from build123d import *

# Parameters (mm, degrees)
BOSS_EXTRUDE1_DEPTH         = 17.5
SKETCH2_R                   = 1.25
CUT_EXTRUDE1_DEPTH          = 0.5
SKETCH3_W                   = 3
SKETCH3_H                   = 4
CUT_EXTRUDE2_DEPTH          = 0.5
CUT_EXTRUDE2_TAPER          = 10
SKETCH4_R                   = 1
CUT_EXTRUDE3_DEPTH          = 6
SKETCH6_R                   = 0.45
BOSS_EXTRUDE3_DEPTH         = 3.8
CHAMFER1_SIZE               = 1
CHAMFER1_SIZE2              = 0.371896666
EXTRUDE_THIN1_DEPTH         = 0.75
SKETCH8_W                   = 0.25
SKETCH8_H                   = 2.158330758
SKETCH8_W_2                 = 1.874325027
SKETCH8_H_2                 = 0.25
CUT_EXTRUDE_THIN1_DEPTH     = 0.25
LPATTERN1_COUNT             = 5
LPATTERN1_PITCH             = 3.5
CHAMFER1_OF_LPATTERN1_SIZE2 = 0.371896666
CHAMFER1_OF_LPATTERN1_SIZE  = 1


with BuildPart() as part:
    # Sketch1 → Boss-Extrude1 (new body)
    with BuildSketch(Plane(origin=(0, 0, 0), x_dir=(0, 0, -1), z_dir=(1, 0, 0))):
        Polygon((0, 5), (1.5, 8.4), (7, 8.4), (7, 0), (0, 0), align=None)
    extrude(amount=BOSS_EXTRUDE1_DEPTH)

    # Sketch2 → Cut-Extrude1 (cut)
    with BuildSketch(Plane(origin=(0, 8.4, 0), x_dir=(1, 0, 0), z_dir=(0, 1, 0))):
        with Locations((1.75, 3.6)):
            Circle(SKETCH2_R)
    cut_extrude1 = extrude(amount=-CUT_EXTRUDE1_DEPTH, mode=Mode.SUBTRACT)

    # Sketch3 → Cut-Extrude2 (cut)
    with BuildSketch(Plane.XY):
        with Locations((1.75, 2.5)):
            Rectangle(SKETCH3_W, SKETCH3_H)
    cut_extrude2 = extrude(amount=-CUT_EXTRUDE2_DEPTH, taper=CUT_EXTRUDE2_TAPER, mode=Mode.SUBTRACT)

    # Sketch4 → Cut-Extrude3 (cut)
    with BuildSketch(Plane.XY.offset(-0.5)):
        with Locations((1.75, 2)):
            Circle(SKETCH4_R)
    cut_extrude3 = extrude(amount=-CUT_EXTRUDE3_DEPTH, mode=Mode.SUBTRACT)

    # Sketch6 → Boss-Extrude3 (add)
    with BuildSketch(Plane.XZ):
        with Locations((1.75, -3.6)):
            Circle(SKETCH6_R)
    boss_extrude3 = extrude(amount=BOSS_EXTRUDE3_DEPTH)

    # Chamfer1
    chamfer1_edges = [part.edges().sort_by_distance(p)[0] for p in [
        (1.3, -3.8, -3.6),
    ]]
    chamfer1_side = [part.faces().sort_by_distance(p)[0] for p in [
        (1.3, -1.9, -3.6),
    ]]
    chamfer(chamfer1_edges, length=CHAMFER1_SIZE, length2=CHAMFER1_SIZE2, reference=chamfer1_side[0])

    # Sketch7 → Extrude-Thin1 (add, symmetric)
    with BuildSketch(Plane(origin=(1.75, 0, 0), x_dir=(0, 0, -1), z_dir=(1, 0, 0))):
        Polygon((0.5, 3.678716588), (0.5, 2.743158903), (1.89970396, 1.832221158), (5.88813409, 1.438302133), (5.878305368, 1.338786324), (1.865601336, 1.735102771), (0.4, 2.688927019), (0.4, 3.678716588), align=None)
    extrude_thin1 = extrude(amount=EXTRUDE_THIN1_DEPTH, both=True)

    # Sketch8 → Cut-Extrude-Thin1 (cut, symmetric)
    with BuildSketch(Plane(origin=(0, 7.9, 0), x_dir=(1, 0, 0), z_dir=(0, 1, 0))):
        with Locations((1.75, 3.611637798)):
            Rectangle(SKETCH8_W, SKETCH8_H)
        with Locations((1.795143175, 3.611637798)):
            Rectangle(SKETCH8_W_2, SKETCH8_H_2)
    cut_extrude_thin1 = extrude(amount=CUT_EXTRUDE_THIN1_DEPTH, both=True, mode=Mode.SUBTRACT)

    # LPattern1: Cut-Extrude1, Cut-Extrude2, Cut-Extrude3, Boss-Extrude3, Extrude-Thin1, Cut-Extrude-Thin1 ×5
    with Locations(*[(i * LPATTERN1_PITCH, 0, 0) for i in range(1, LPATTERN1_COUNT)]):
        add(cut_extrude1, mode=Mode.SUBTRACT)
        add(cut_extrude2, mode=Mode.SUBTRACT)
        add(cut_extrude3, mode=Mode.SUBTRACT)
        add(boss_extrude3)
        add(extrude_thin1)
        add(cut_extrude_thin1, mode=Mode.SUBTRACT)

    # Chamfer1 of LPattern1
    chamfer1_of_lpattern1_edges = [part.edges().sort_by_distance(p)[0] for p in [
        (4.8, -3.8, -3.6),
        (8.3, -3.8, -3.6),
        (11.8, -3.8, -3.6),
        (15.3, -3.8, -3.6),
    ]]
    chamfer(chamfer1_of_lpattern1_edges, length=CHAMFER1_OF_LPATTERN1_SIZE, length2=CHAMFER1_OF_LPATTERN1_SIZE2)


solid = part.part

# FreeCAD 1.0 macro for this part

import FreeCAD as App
import Part
import Sketcher

V = App.Vector


def edges_at(feature, points):
    """Names of the edges that pass closest to the given points."""
    edges = feature.Shape.Edges
    near = lambda p: min(range(len(edges)), key=lambda i: edges[i].distToShape(Part.Vertex(*p))[0])
    return sorted({f"Edge{near(p) + 1}" for p in points})

doc = App.newDocument("Part")
params = doc.addObject("Spreadsheet::Sheet", "Params")
for row, (alias, value) in enumerate([
    ("sketch1_width", "5 mm"),
    ("sketch1_height", "7 mm"),
    ("sketch1_width2", "8.4 mm"),
    ("sketch1_height2", "5.5 mm"),
    ("pad1_length", "17.5 mm"),
    ("sketch2_diameter", "2.5 mm"),
    ("pocket1_length", "0.5 mm"),
    ("sketch3_width", "3 mm"),
    ("sketch3_height", "4 mm"),
    ("pocket2_length", "0.5 mm"),
    ("pocket2_taper", "-10 deg"),
    ("sketch4_diameter", "2 mm"),
    ("pocket3_length", "6 mm"),
    ("sketch5_diameter", "0.9 mm"),
    ("pad2_length", "3.8 mm"),
    ("chamfer_size", "1 mm"),
    ("chamfer_size2", "0.371897 mm"),
    ("sketch6_height", "0.1 mm"),
    ("sketch6_length", "0.1 mm"),
    ("pad3_length", "1.5 mm"),
    ("sketch7_width", "0.25 mm"),
    ("pocket4_length", "0.5 mm"),
    ("linearpattern_pitch", "3.5 mm"),
    ("chamfer2_size", "1 mm"),
    ("chamfer2_size2", "0.371897 mm"),
], start=1):
    params.set(f"A{row}", alias)
    params.set(f"B{row}", "=" + value)
    params.setAlias(f"B{row}", alias)

body = doc.addObject("PartDesign::Body", "Body")

sketch1 = body.newObject("Sketcher::SketchObject", "Sketch")
sketch1.AttachmentSupport = (doc.getObject("YZ_Plane"), [""])
sketch1.MapMode = "FlatFace"
sketch1.addGeometry(Part.LineSegment(V(8.4, -1.5, 0), V(5, 0, 0)), False)
sketch1.addGeometry(Part.LineSegment(V(5, 0, 0), V(0, 0, 0)), False)
sketch1.addGeometry(Part.LineSegment(V(0, 0, 0), V(0, -7, 0)), False)
sketch1.addGeometry(Part.LineSegment(V(0, -7, 0), V(8.4, -7, 0)), False)
sketch1.addGeometry(Part.LineSegment(V(8.4, -7, 0), V(8.4, -1.5, 0)), False)
sketch1.addConstraint(Sketcher.Constraint("Coincident", 0, 2, 1, 1))
sketch1.addConstraint(Sketcher.Constraint("Coincident", 1, 2, 2, 1))
sketch1.addConstraint(Sketcher.Constraint("Coincident", 2, 2, 3, 1))
sketch1.addConstraint(Sketcher.Constraint("Coincident", 3, 2, 4, 1))
sketch1.addConstraint(Sketcher.Constraint("Coincident", 4, 2, 0, 1))
sketch1.addConstraint(Sketcher.Constraint("Horizontal", 1))
sketch1.addConstraint(Sketcher.Constraint("Vertical", 2))
sketch1.addConstraint(Sketcher.Constraint("Horizontal", 3))
sketch1.addConstraint(Sketcher.Constraint("Vertical", 4))
sketch1.addConstraint(Sketcher.Constraint("Coincident", 1, 2, -1, 1))
sketch1.addConstraint(Sketcher.Constraint("DistanceX", 1, 2, 1, 1, 5.0))
sketch1.addConstraint(Sketcher.Constraint("DistanceY", 2, 2, 2, 1, 7.0))
sketch1.addConstraint(Sketcher.Constraint("DistanceX", 3, 1, 3, 2, 8.4))
sketch1.addConstraint(Sketcher.Constraint("DistanceY", 4, 1, 4, 2, 5.5))
sketch1.setExpression("Constraints[10]", "Params.sketch1_width")
sketch1.setExpression("Constraints[11]", "Params.sketch1_height")
sketch1.setExpression("Constraints[12]", "Params.sketch1_width2")
sketch1.setExpression("Constraints[13]", "Params.sketch1_height2")
pad1 = body.newObject("PartDesign::Pad", "Pad")
pad1.Profile = sketch1
pad1.setExpression("Length", "Params.pad1_length")

sketch2 = body.newObject("Sketcher::SketchObject", "Sketch001")
sketch2.AttachmentSupport = (doc.getObject("XZ_Plane"), [""])
sketch2.MapMode = "FlatFace"
sketch2.AttachmentOffset = App.Placement(V(0, 0, -8.4), App.Rotation())
sketch2.addGeometry(Part.Circle(V(1.75, -3.6, 0), V(0, 0, 1), 1.25), False)
sketch2.addConstraint(Sketcher.Constraint("Diameter", 0, 2.5))
sketch2.addConstraint(Sketcher.Constraint("DistanceY", 0, 3, -1, 1, 3.6))
sketch2.addConstraint(Sketcher.Constraint("DistanceX", -1, 1, 0, 3, 1.75))
sketch2.setExpression("Constraints[0]", "Params.sketch2_diameter")
pocket1 = body.newObject("PartDesign::Pocket", "Pocket")
pocket1.Profile = sketch2
pocket1.setExpression("Length", "Params.pocket1_length")
pocket1.Reversed = True

sketch3 = body.newObject("Sketcher::SketchObject", "Sketch002")
sketch3.AttachmentSupport = (doc.getObject("XY_Plane"), [""])
sketch3.MapMode = "FlatFace"
sketch3.addGeometry(Part.LineSegment(V(0.25, 4.5, 0), V(0.25, 0.5, 0)), False)
sketch3.addGeometry(Part.LineSegment(V(0.25, 0.5, 0), V(3.25, 0.5, 0)), False)
sketch3.addGeometry(Part.LineSegment(V(3.25, 0.5, 0), V(3.25, 4.5, 0)), False)
sketch3.addGeometry(Part.LineSegment(V(3.25, 4.5, 0), V(0.25, 4.5, 0)), False)
sketch3.addConstraint(Sketcher.Constraint("Coincident", 0, 2, 1, 1))
sketch3.addConstraint(Sketcher.Constraint("Coincident", 1, 2, 2, 1))
sketch3.addConstraint(Sketcher.Constraint("Coincident", 2, 2, 3, 1))
sketch3.addConstraint(Sketcher.Constraint("Coincident", 3, 2, 0, 1))
sketch3.addConstraint(Sketcher.Constraint("Vertical", 0))
sketch3.addConstraint(Sketcher.Constraint("Horizontal", 1))
sketch3.addConstraint(Sketcher.Constraint("Vertical", 2))
sketch3.addConstraint(Sketcher.Constraint("Horizontal", 3))
sketch3.addConstraint(Sketcher.Constraint("DistanceX", 1, 1, 1, 2, 3.0))
sketch3.addConstraint(Sketcher.Constraint("DistanceY", 0, 2, 0, 1, 4.0))
sketch3.addConstraint(Sketcher.Constraint("DistanceY", -1, 1, 0, 2, 0.5))
sketch3.addConstraint(Sketcher.Constraint("DistanceX", -1, 1, 0, 2, 0.25))
sketch3.setExpression("Constraints[8]", "Params.sketch3_width")
sketch3.setExpression("Constraints[9]", "Params.sketch3_height")
pocket2 = body.newObject("PartDesign::Pocket", "Pocket001")
pocket2.Profile = sketch3
pocket2.setExpression("Length", "Params.pocket2_length")
pocket2.setExpression("TaperAngle", "Params.pocket2_taper")

sketch4 = body.newObject("Sketcher::SketchObject", "Sketch003")
sketch4.AttachmentSupport = (doc.getObject("XY_Plane"), [""])
sketch4.MapMode = "FlatFace"
sketch4.AttachmentOffset = App.Placement(V(0, 0, -0.5), App.Rotation())
sketch4.addGeometry(Part.Circle(V(1.75, 2, 0), V(0, 0, 1), 1), False)
sketch4.addConstraint(Sketcher.Constraint("Diameter", 0, 2.0))
sketch4.addConstraint(Sketcher.Constraint("DistanceY", -1, 1, 0, 3, 2.0))
sketch4.addConstraint(Sketcher.Constraint("DistanceX", -1, 1, 0, 3, 1.75))
sketch4.setExpression("Constraints[0]", "Params.sketch4_diameter")
pocket3 = body.newObject("PartDesign::Pocket", "Pocket002")
pocket3.Profile = sketch4
pocket3.setExpression("Length", "Params.pocket3_length")

sketch5 = body.newObject("Sketcher::SketchObject", "Sketch004")
sketch5.AttachmentSupport = (doc.getObject("XZ_Plane"), [""])
sketch5.MapMode = "FlatFace"
sketch5.addGeometry(Part.Circle(V(1.75, -3.6, 0), V(0, 0, 1), 0.45), False)
sketch5.addConstraint(Sketcher.Constraint("Diameter", 0, 0.9))
sketch5.addConstraint(Sketcher.Constraint("DistanceY", 0, 3, -1, 1, 3.6))
sketch5.addConstraint(Sketcher.Constraint("DistanceX", -1, 1, 0, 3, 1.75))
sketch5.setExpression("Constraints[0]", "Params.sketch5_diameter")
pad2 = body.newObject("PartDesign::Pad", "Pad001")
pad2.Profile = sketch5
pad2.setExpression("Length", "Params.pad2_length")
doc.recompute()

chamfer = body.newObject("PartDesign::Chamfer", "Chamfer")
chamfer.Base = (pad2, edges_at(pad2, [(1.3, -3.8, -3.6)]))
chamfer.ChamferType = "Two distances"
chamfer.setExpression("Size", "Params.chamfer_size")
chamfer.setExpression("Size2", "Params.chamfer_size2")

sketch6 = body.newObject("Sketcher::SketchObject", "Sketch005")
sketch6.AttachmentSupport = (doc.getObject("YZ_Plane"), [""])
sketch6.MapMode = "FlatFace"
sketch6.AttachmentOffset = App.Placement(V(0, 0, 1.75), App.Rotation())
sketch6.addGeometry(Part.LineSegment(V(2.743159, -0.5, 0), V(3.678717, -0.5, 0)), False)
sketch6.addGeometry(Part.LineSegment(V(3.678717, -0.5, 0), V(3.678717, -0.4, 0)), False)
sketch6.addGeometry(Part.LineSegment(V(3.678717, -0.4, 0), V(2.688927, -0.4, 0)), False)
sketch6.addGeometry(Part.LineSegment(V(2.688927, -0.4, 0), V(1.735103, -1.865601, 0)), False)
sketch6.addGeometry(Part.LineSegment(V(1.735103, -1.865601, 0), V(1.338786, -5.878305, 0)), False)
sketch6.addGeometry(Part.LineSegment(V(1.338786, -5.878305, 0), V(1.438302, -5.888134, 0)), False)
sketch6.addGeometry(Part.LineSegment(V(1.438302, -5.888134, 0), V(1.832221, -1.899704, 0)), False)
sketch6.addGeometry(Part.LineSegment(V(1.832221, -1.899704, 0), V(2.743159, -0.5, 0)), False)
sketch6.addConstraint(Sketcher.Constraint("Coincident", 0, 2, 1, 1))
sketch6.addConstraint(Sketcher.Constraint("Coincident", 1, 2, 2, 1))
sketch6.addConstraint(Sketcher.Constraint("Coincident", 2, 2, 3, 1))
sketch6.addConstraint(Sketcher.Constraint("Coincident", 3, 2, 4, 1))
sketch6.addConstraint(Sketcher.Constraint("Coincident", 4, 2, 5, 1))
sketch6.addConstraint(Sketcher.Constraint("Coincident", 5, 2, 6, 1))
sketch6.addConstraint(Sketcher.Constraint("Coincident", 6, 2, 7, 1))
sketch6.addConstraint(Sketcher.Constraint("Coincident", 7, 2, 0, 1))
sketch6.addConstraint(Sketcher.Constraint("Horizontal", 0))
sketch6.addConstraint(Sketcher.Constraint("Vertical", 1))
sketch6.addConstraint(Sketcher.Constraint("Horizontal", 2))
sketch6.addConstraint(Sketcher.Constraint("Perpendicular", 4, 5))
sketch6.addConstraint(Sketcher.Constraint("Perpendicular", 5, 6))
sketch6.addConstraint(Sketcher.Constraint("Parallel", 3, 7))
sketch6.addConstraint(Sketcher.Constraint("DistanceY", 1, 1, 1, 2, 0.1))
sketch6.addConstraint(Sketcher.Constraint("Distance", 5, 0.1))
sketch6.addConstraint(Sketcher.Constraint("DistanceY", 0, 2, -1, 1, 0.5))
sketch6.addConstraint(Sketcher.Constraint("DistanceX", 2, 2, 2, 1, 0.98979))
sketch6.addConstraint(Sketcher.Constraint("DistanceY", 3, 2, -1, 1, 1.865601))
sketch6.addConstraint(Sketcher.Constraint("DistanceX", 5, 2, 3, 2, 0.296801))
sketch6.addConstraint(Sketcher.Constraint("DistanceX", 0, 1, 0, 2, 0.935558))
sketch6.addConstraint(Sketcher.Constraint("DistanceX", -1, 1, 6, 2, 1.832221))
sketch6.addConstraint(Sketcher.Constraint("DistanceX", -1, 1, 7, 2, 2.743159))
sketch6.addConstraint(Sketcher.Constraint("DistanceY", 5, 2, 6, 2, 3.98843))
sketch6.setExpression("Constraints[14]", "Params.sketch6_height")
sketch6.setExpression("Constraints[15]", "Params.sketch6_length")
pad3 = body.newObject("PartDesign::Pad", "Pad002")
pad3.Profile = sketch6
pad3.setExpression("Length", "Params.pad3_length")
pad3.Midplane = True

sketch7 = body.newObject("Sketcher::SketchObject", "Sketch006")
sketch7.AttachmentSupport = (doc.getObject("XZ_Plane"), [""])
sketch7.MapMode = "FlatFace"
sketch7.AttachmentOffset = App.Placement(V(0, 0, -7.9), App.Rotation())
sketch7.addGeometry(Part.LineSegment(V(1.625, -3.486638, 0), V(1.625, -2.532472, 0)), False)
sketch7.addGeometry(Part.LineSegment(V(1.625, -2.532472, 0), V(1.875, -2.532472, 0)), False)
sketch7.addGeometry(Part.LineSegment(V(1.875, -2.532472, 0), V(1.875, -3.486638, 0)), False)
sketch7.addGeometry(Part.LineSegment(V(1.875, -3.486638, 0), V(2.732306, -3.486638, 0)), False)
sketch7.addGeometry(Part.LineSegment(V(2.732306, -3.486638, 0), V(2.732306, -3.736638, 0)), False)
sketch7.addGeometry(Part.LineSegment(V(2.732306, -3.736638, 0), V(1.875, -3.736638, 0)), False)
sketch7.addGeometry(Part.LineSegment(V(1.875, -3.736638, 0), V(1.875, -4.690803, 0)), False)
sketch7.addGeometry(Part.LineSegment(V(1.875, -4.690803, 0), V(1.625, -4.690803, 0)), False)
sketch7.addGeometry(Part.LineSegment(V(1.625, -4.690803, 0), V(1.625, -3.736638, 0)), False)
sketch7.addGeometry(Part.LineSegment(V(1.625, -3.736638, 0), V(0.857981, -3.736638, 0)), False)
sketch7.addGeometry(Part.LineSegment(V(0.857981, -3.736638, 0), V(0.857981, -3.486638, 0)), False)
sketch7.addGeometry(Part.LineSegment(V(0.857981, -3.486638, 0), V(1.625, -3.486638, 0)), False)
sketch7.addConstraint(Sketcher.Constraint("Coincident", 0, 2, 1, 1))
sketch7.addConstraint(Sketcher.Constraint("Coincident", 1, 2, 2, 1))
sketch7.addConstraint(Sketcher.Constraint("Coincident", 2, 2, 3, 1))
sketch7.addConstraint(Sketcher.Constraint("Coincident", 3, 2, 4, 1))
sketch7.addConstraint(Sketcher.Constraint("Coincident", 4, 2, 5, 1))
sketch7.addConstraint(Sketcher.Constraint("Coincident", 5, 2, 6, 1))
sketch7.addConstraint(Sketcher.Constraint("Coincident", 6, 2, 7, 1))
sketch7.addConstraint(Sketcher.Constraint("Coincident", 7, 2, 8, 1))
sketch7.addConstraint(Sketcher.Constraint("Coincident", 8, 2, 9, 1))
sketch7.addConstraint(Sketcher.Constraint("Coincident", 9, 2, 10, 1))
sketch7.addConstraint(Sketcher.Constraint("Coincident", 10, 2, 11, 1))
sketch7.addConstraint(Sketcher.Constraint("Coincident", 11, 2, 0, 1))
sketch7.addConstraint(Sketcher.Constraint("Vertical", 0))
sketch7.addConstraint(Sketcher.Constraint("Horizontal", 1))
sketch7.addConstraint(Sketcher.Constraint("Vertical", 2))
sketch7.addConstraint(Sketcher.Constraint("Horizontal", 3))
sketch7.addConstraint(Sketcher.Constraint("Vertical", 4))
sketch7.addConstraint(Sketcher.Constraint("Horizontal", 5))
sketch7.addConstraint(Sketcher.Constraint("Vertical", 6))
sketch7.addConstraint(Sketcher.Constraint("Horizontal", 7))
sketch7.addConstraint(Sketcher.Constraint("Vertical", 8))
sketch7.addConstraint(Sketcher.Constraint("Horizontal", 9))
sketch7.addConstraint(Sketcher.Constraint("Vertical", 10))
sketch7.addConstraint(Sketcher.Constraint("Horizontal", 11))
sketch7.addConstraint(Sketcher.Constraint("Horizontal", 5, 2, 8, 2))
sketch7.addConstraint(Sketcher.Constraint("Horizontal", 3, 2, 10, 2))
sketch7.addConstraint(Sketcher.Constraint("Vertical", 2, 2, 5, 2))
sketch7.addConstraint(Sketcher.Constraint("Vertical", 0, 2, 7, 2))
sketch7.addConstraint(Sketcher.Constraint("Equal", 7, 4))
sketch7.addConstraint(Sketcher.Constraint("Equal", 2, 6))
sketch7.addConstraint(Sketcher.Constraint("DistanceX", 1, 1, 1, 2, 0.25))
sketch7.addConstraint(Sketcher.Constraint("DistanceX", -1, 1, 0, 2, 1.625))
sketch7.addConstraint(Sketcher.Constraint("DistanceX", 9, 2, 9, 1, 0.767019))
sketch7.addConstraint(Sketcher.Constraint("DistanceX", 3, 1, 3, 2, 0.857306))
sketch7.addConstraint(Sketcher.Constraint("DistanceY", 0, 1, 0, 2, 0.954165))
sketch7.addConstraint(Sketcher.Constraint("DistanceY", 0, 2, -1, 1, 2.532472))
sketch7.setExpression("Constraints[30]", "Params.sketch7_width")
pocket4 = body.newObject("PartDesign::Pocket", "Pocket003")
pocket4.Profile = sketch7
pocket4.setExpression("Length", "Params.pocket4_length")
pocket4.Midplane = True
doc.recompute()

linearpattern = body.newObject("PartDesign::LinearPattern", "LinearPattern")
linearpattern.Originals = [pocket1, pocket2, pocket3, pad2, pad3, pocket4]
linearpattern.Direction = (doc.getObject("X_Axis"), [""])
linearpattern.Mode = "offset"
linearpattern.setExpression("Offset", "Params.linearpattern_pitch")
linearpattern.Occurrences = 5
body.Tip = linearpattern
doc.recompute()

chamfer2 = body.newObject("PartDesign::Chamfer", "Chamfer001")
chamfer2.Base = (linearpattern, edges_at(linearpattern, [
    (4.8, -3.8, -3.6),
    (8.3, -3.8, -3.6),
    (11.8, -3.8, -3.6),
    (15.3, -3.8, -3.6),
]))
chamfer2.ChamferType = "Two distances"
chamfer2.setExpression("Size", "Params.chamfer2_size")
chamfer2.setExpression("Size2", "Params.chamfer2_size2")

doc.recompute()
